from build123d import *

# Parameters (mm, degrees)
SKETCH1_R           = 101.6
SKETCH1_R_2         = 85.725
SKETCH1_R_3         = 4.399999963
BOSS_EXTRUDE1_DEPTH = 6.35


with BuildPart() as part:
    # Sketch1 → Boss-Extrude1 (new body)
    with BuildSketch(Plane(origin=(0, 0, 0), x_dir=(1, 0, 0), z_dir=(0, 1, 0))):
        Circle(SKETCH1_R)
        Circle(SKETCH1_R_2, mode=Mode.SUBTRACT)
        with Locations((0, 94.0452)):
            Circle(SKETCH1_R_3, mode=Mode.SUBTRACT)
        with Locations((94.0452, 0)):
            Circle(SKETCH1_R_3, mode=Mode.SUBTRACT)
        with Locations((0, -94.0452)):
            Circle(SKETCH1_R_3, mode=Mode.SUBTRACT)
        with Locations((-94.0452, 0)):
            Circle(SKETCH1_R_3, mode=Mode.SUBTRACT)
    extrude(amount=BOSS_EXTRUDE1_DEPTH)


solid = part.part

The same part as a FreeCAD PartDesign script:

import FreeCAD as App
import Part
import Sketcher

V = App.Vector
Q = App.Units.Quantity

doc = App.newDocument("Part")
params = doc.addObject("Spreadsheet::Sheet", "Params")
for row, (alias, value) in enumerate([
    ("sketch1_diameter", "8 in"),
    ("sketch1_diameter2", "6.75 in"),
    ("pad1_length", "0.25 in"),
], start=1):
    params.set(f"A{row}", alias)
    params.set(f"B{row}", "=" + value)
    params.setAlias(f"B{row}", alias)

body = doc.addObject("PartDesign::Body", "Body")

sketch1 = doc.addObject("Sketcher::SketchObject", "Sketch")
body.addObject(sketch1)
sketch1.AttachmentSupport = (doc.XZ_Plane, [""])
sketch1.MapMode = "FlatFace"
sketch1.addGeometry([
    Part.Circle(V(0, 0, 0), V(0, 0, 1), 101.6),
    Part.Circle(V(0, 94.0452, 0), V(0, 0, 1), 4.4),
    Part.Circle(V(-94.0452, 0, 0), V(0, 0, 1), 4.4),
    Part.Circle(V(0, 0, 0), V(0, 0, 1), 85.725),
    Part.Circle(V(94.0452, 0, 0), V(0, 0, 1), 4.4),
    Part.Circle(V(0, -94.0452, 0), V(0, 0, 1), 4.4),
], False)
sketch1.addConstraint([
    Sketcher.Constraint("Coincident", 0, 3, -1, 1),
    Sketcher.Constraint("Coincident", 3, 3, -1, 1),
    Sketcher.Constraint("Equal", 1, 2),
    Sketcher.Constraint("Equal", 2, 4),
    Sketcher.Constraint("Equal", 4, 5),
    Sketcher.Constraint("Symmetric", 2, 3, 4, 3, -1, 1),
    Sketcher.Constraint("Symmetric", 1, 3, 5, 3, -1, 1),
    Sketcher.Constraint("PointOnObject", 1, 3, -2),
    Sketcher.Constraint("PointOnObject", 2, 3, -1),
    Sketcher.Constraint("Diameter", 0, Q("8 in")),
    Sketcher.Constraint("Diameter", 3, Q("6.75 in")),
    Sketcher.Constraint("Diameter", 1, 8.8),
    Sketcher.Constraint("DistanceY", -1, 1, 1, 3, 94.0452),
    Sketcher.Constraint("DistanceX", 2, 3, -1, 1, 94.0452),
])
sketch1.setExpression("Constraints[9]", "Params.sketch1_diameter")
sketch1.setExpression("Constraints[10]", "Params.sketch1_diameter2")
pad1 = doc.addObject("PartDesign::Pad", "Pad")
body.addObject(pad1)
pad1.Profile = sketch1
pad1.setExpression("Length", "Params.pad1_length")
pad1.Reversed = True

doc.recompute()
